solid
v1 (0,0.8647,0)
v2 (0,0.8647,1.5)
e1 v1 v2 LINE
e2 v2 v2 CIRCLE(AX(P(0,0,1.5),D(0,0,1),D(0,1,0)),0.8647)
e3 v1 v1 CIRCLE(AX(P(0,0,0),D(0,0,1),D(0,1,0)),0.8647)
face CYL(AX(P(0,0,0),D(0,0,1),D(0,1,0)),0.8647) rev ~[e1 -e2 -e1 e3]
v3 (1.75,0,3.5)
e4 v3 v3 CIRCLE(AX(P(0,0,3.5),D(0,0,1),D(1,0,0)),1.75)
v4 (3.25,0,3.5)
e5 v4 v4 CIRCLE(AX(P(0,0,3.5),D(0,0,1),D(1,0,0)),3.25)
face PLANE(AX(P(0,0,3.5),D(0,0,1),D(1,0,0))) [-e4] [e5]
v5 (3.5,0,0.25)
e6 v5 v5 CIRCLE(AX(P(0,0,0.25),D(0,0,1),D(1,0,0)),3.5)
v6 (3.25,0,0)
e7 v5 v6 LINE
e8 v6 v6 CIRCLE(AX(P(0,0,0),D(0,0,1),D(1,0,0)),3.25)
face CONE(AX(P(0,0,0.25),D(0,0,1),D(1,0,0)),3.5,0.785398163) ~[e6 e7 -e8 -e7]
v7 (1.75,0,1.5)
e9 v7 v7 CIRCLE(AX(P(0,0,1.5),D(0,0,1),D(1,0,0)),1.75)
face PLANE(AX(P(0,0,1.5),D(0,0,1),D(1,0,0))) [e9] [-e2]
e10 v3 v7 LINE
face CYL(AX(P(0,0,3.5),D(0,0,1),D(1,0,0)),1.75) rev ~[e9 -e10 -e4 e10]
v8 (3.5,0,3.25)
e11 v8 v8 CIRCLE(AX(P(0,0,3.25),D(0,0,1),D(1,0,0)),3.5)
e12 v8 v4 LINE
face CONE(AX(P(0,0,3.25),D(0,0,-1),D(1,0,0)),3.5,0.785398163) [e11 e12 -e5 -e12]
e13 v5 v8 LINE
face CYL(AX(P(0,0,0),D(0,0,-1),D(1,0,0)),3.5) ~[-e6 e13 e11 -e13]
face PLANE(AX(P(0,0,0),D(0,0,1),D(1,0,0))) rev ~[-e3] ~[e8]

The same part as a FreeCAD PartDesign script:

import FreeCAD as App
import Part
import Sketcher

V = App.Vector


def edges_at(feature, points):
    """Names of the edges that pass closest to the given points."""
    edges = feature.Shape.Edges
    near = lambda p: min(range(len(edges)), key=lambda i: edges[i].distToShape(Part.Vertex(*p))[0])
    return sorted({f"Edge{near(p) + 1}" for p in points})

doc = App.newDocument("Part")
body = doc.addObject("PartDesign::Body", "Body")

sketch1 = doc.addObject("Sketcher::SketchObject", "Sketch")
body.addObject(sketch1)
sketch1.AttachmentSupport = (doc.XY_Plane, [""])
sketch1.MapMode = "FlatFace"
sketch1.addGeometry(Part.Circle(V(0, 0, 0), V(0, 0, 1), 3.5), False)
sketch1.addConstraint([
    Sketcher.Constraint("Coincident", 0, 3, -1, 1),
    Sketcher.Constraint("Diameter", 0, 7.0),
])
pad1 = doc.addObject("PartDesign::Pad", "Pad")
body.addObject(pad1)
pad1.Profile = sketch1
pad1.Length = 3.5

sketch2 = doc.addObject("Sketcher::SketchObject", "Sketch001")
body.addObject(sketch2)
sketch2.AttachmentSupport = (doc.XY_Plane, [""])
sketch2.MapMode = "FlatFace"
sketch2.addGeometry(Part.Circle(V(0, 0, 0), V(0, 0, 1), 0.9), False)
sketch2.addConstraint([
    Sketcher.Constraint("Coincident", 0, 3, -1, 1),
    Sketcher.Constraint("Diameter", 0, 1.7294),
])
doc.recompute()
hole = doc.addObject("PartDesign::Hole", "Hole")
body.addObject(hole)
hole.Profile = sketch2
hole.ThreadType = "None"
hole.Diameter = 1.7294
hole.DepthType = "Dimension"
hole.Depth = 10
hole.DrillPoint = "Angled"
hole.DrillPointAngle = 118
hole.Reversed = True
doc.recompute()

chamfer = doc.addObject("PartDesign::Chamfer", "Chamfer")
body.addObject(chamfer)
chamfer.Base = (hole, edges_at(hole, [(-3.5, 0, 3.5), (-3.5, 0, 0)]))
chamfer.Size = 0.25

sketch3 = doc.addObject("Sketcher::SketchObject", "Sketch002")
body.addObject(sketch3)
sketch3.AttachmentSupport = (doc.XY_Plane, [""])
sketch3.MapMode = "FlatFace"
sketch3.AttachmentOffset = App.Placement(V(0, 0, 3.5), App.Rotation())
sketch3.addGeometry(Part.Circle(V(0, 0, 0), V(0, 0, 1), 1.8), False)
sketch3.addConstraint([
    Sketcher.Constraint("Coincident", 0, 3, -1, 1),
    Sketcher.Constraint("Diameter", 0, 3.5),
])
pocket1 = doc.addObject("PartDesign::Pocket", "Pocket")
body.addObject(pocket1)
pocket1.Profile = sketch3
pocket1.Length = 2

doc.recompute()
